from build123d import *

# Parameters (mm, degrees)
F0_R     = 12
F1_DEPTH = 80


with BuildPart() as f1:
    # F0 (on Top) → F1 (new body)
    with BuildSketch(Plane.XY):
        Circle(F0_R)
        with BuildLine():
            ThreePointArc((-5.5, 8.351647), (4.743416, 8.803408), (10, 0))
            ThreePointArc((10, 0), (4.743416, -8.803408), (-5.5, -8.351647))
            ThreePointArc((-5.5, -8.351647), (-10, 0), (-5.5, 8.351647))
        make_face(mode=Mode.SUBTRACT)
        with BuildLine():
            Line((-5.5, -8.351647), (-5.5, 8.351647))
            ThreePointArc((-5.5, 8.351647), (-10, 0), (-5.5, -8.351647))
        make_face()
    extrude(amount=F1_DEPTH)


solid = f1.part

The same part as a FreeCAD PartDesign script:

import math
import FreeCAD as App
import Part
import Sketcher

V = App.Vector
Q = App.Units.Quantity

doc = App.newDocument("Part")
body = doc.addObject("PartDesign::Body", "Body")

sketch1 = body.newObject("Sketcher::SketchObject", "Sketch")
sketch1.AttachmentSupport = (doc.getObject("XY_Plane"), [""])
sketch1.MapMode = "FlatFace"
sketch1.addGeometry(Part.Circle(V(0, 0, 0), V(0, 0, 1), 12), False)
sketch1.addGeometry(Part.ArcOfCircle(Part.Circle(V(0, 0, 0), V(0, 0, 1), 10), math.radians(-123), math.radians(0)), False)
sketch1.addGeometry(Part.LineSegment(V(-6, -8, 0), V(-6, 8, 0)), False)
sketch1.addGeometry(Part.ArcOfCircle(Part.Circle(V(0, 0, 0), V(0, 0, 1), 10), math.radians(0), math.radians(123)), False)
sketch1.addConstraint(Sketcher.Constraint("Coincident", 1, 1, 2, 1))
sketch1.addConstraint(Sketcher.Constraint("Coincident", 2, 2, 3, 2))
sketch1.addConstraint(Sketcher.Constraint("Tangent", 3, 1, 1, 2))
sketch1.addConstraint(Sketcher.Constraint("Vertical", 2))
sketch1.addConstraint(Sketcher.Constraint("Coincident", 0, 3, -1, 1))
sketch1.addConstraint(Sketcher.Constraint("Coincident", 1, 3, -1, 1))
sketch1.addConstraint(Sketcher.Constraint("Equal", 1, 3))
sketch1.addConstraint(Sketcher.Constraint("PointOnObject", 3, 1, -1))
sketch1.addConstraint(Sketcher.Constraint("Diameter", 0, Q("24 mm")))
sketch1.addConstraint(Sketcher.Constraint("Radius", 1, Q("10.000001 mm")))
sketch1.addConstraint(Sketcher.Constraint("DistanceX", 1, 1, -1, 1, Q("5.5 mm")))
pad1 = body.newObject("PartDesign::Pad", "Pad")
pad1.Profile = sketch1
pad1.Length = 80

doc.recompute()
